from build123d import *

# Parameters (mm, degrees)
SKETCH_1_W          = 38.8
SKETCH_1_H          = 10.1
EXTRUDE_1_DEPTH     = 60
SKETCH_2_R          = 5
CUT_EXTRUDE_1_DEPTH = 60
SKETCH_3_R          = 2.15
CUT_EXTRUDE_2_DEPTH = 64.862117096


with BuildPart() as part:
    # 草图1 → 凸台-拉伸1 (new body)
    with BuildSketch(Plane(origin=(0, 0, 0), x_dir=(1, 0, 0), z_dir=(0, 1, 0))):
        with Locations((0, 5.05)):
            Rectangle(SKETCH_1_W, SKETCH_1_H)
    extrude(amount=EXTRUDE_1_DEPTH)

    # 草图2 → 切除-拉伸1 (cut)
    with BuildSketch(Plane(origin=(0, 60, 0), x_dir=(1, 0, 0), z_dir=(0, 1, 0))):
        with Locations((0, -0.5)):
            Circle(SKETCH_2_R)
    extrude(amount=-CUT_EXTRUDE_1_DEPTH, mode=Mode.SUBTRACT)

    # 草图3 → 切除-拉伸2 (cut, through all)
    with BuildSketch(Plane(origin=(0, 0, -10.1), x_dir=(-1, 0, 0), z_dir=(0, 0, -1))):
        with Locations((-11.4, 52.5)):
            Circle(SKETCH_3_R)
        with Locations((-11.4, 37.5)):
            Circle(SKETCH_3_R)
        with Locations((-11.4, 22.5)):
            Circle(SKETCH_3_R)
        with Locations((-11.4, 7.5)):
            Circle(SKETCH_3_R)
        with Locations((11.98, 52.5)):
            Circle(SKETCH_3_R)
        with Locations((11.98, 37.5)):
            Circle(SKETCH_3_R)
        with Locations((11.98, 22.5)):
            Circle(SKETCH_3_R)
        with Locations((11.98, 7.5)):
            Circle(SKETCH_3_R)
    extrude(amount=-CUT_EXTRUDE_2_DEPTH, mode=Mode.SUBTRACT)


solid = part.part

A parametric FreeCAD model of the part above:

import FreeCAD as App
import Part
import Sketcher


def add_polygon(sketch, points):
    """Adds a closed chain of lines whose ends are joined by coincident constraints."""
    first, n = sketch.GeometryCount, len(points)
    for a, b in zip(points, points[1:] + points[:1]):
        sketch.addGeometry(Part.LineSegment(App.Vector(*a, 0), App.Vector(*b, 0)), False)
    for i in range(n):
        sketch.addConstraint(Sketcher.Constraint("Coincident", first + i, 2, first + (i + 1) % n, 1))

doc = App.newDocument("Part")
params = doc.addObject("Spreadsheet::Sheet", "Params")
for row, (alias, value) in enumerate([
    ("sketch1_width", "38.8 mm"),
    ("sketch1_height", "10.1 mm"),
    ("pad1_length", "60 mm"),
    ("sketch2_diameter", "10 mm"),
    ("pocket1_length", "60 mm"),
    ("sketch3_diameter", "4.3 mm"),
], start=1):
    params.set(f"A{row}", alias)
    params.set(f"B{row}", "=" + value)
    params.setAlias(f"B{row}", alias)

body = doc.addObject("PartDesign::Body", "Body")

# Sketch on XZ plane
sketch1 = doc.addObject("Sketcher::SketchObject", "Sketch")
body.addObject(sketch1)
sketch1.AttachmentSupport = (doc.XZ_Plane, [""])
sketch1.MapMode = "FlatFace"
add_polygon(sketch1, [(-19, -10), (-19, 0), (19, 0), (19, -10)])  # lines 0-3
sketch1.addConstraint([
    Sketcher.Constraint("Vertical", 0),
    Sketcher.Constraint("Horizontal", 1),
    Sketcher.Constraint("Vertical", 2),
    Sketcher.Constraint("Horizontal", 3),
    Sketcher.Constraint("Symmetric", 0, 2, 1, 2, -1, 1),
    Sketcher.Constraint("DistanceX", 1, 1, 1, 2, 38.8),
    Sketcher.Constraint("DistanceY", 0, 1, 0, 2, 10.1),
])
sketch1.setExpression("Constraints[9]", "Params.sketch1_width")
sketch1.setExpression("Constraints[10]", "Params.sketch1_height")
pad1 = doc.addObject("PartDesign::Pad", "Pad")
body.addObject(pad1)
pad1.Profile = sketch1
pad1.setExpression("Length", "Params.pad1_length")
pad1.Reversed = True

# Sketch on XZ plane
sketch2 = doc.addObject("Sketcher::SketchObject", "Sketch001")
body.addObject(sketch2)
sketch2.AttachmentSupport = (doc.XZ_Plane, [""])
sketch2.MapMode = "FlatFace"
sketch2.AttachmentOffset = App.Placement(App.Vector(0, 0, -60), App.Rotation())
sketch2.addGeometry(Part.Circle(App.Vector(0, 0, 0), App.Vector(0, 0, 1), 5), False)
sketch2.addConstraint([
    Sketcher.Constraint("PointOnObject", 0, 3, -2),
    Sketcher.Constraint("Diameter", 0, 10.0),
    Sketcher.Constraint("DistanceY", -1, 1, 0, 3, 0.5),
])
sketch2.setExpression("Constraints[1]", "Params.sketch2_diameter")
pocket1 = doc.addObject("PartDesign::Pocket", "Pocket")
body.addObject(pocket1)
pocket1.Profile = sketch2
pocket1.setExpression("Length", "Params.pocket1_length")
pocket1.Reversed = True

# Sketch on XY plane
sketch3 = doc.addObject("Sketcher::SketchObject", "Sketch002")
body.addObject(sketch3)
sketch3.AttachmentSupport = (doc.XY_Plane, [""])
sketch3.MapMode = "FlatFace"
sketch3.AttachmentOffset = App.Placement(App.Vector(0, 0, -10.1), App.Rotation())
sketch3.addGeometry([
    Part.Circle(App.Vector(11.4, 52.5, 0), App.Vector(0, 0, 1), 2.1),  # 0
    Part.Circle(App.Vector(11.4, 37.5, 0), App.Vector(0, 0, 1), 2.1),  # 1
    Part.Circle(App.Vector(11.4, 22.5, 0), App.Vector(0, 0, 1), 2.1),  # 2
    Part.Circle(App.Vector(11.4, 7.5, 0), App.Vector(0, 0, 1), 2.1),  # 3
    Part.Circle(App.Vector(-12, 52.5, 0), App.Vector(0, 0, 1), 2.1),  # 4
    Part.Circle(App.Vector(-12, 37.5, 0), App.Vector(0, 0, 1), 2.1),  # 5
    Part.Circle(App.Vector(-12, 22.5, 0), App.Vector(0, 0, 1), 2.1),  # 6
    Part.Circle(App.Vector(-12, 7.5, 0), App.Vector(0, 0, 1), 2.1),  # 7
], False)
sketch3.addConstraint([
    Sketcher.Constraint("Equal", 0, 1),
    Sketcher.Constraint("Equal", 1, 2),
    Sketcher.Constraint("Equal", 2, 3),
    Sketcher.Constraint("Equal", 3, 4),
    Sketcher.Constraint("Equal", 4, 5),
    Sketcher.Constraint("Equal", 5, 6),
    Sketcher.Constraint("Equal", 6, 7),
    Sketcher.Constraint("Horizontal", 0, 3, 4, 3),
    Sketcher.Constraint("Horizontal", 1, 3, 5, 3),
    Sketcher.Constraint("Horizontal", 2, 3, 6, 3),
    Sketcher.Constraint("Horizontal", 3, 3, 7, 3),
    Sketcher.Constraint("Vertical", 0, 3, 1, 3),
    Sketcher.Constraint("Vertical", 1, 3, 2, 3),
    Sketcher.Constraint("Vertical", 2, 3, 3, 3),
    Sketcher.Constraint("Vertical", 4, 3, 5, 3),
    Sketcher.Constraint("Vertical", 5, 3, 6, 3),
    Sketcher.Constraint("Vertical", 6, 3, 7, 3),
    Sketcher.Constraint("Diameter", 0, 4.3),
    Sketcher.Constraint("DistanceY", 1, 3, 0, 3, 15.0),
    Sketcher.Constraint("DistanceY", 2, 3, 1, 3, 15.0),
    Sketcher.Constraint("DistanceY", 3, 3, 2, 3, 15.0),
    Sketcher.Constraint("DistanceX", -1, 1, 0, 3, 11.4),
    Sketcher.Constraint("DistanceY", -1, 1, 0, 3, 52.5),
    Sketcher.Constraint("DistanceX", 4, 3, -1, 1, 11.98),
])
sketch3.setExpression("Constraints[17]", "Params.sketch3_diameter")
pocket2 = doc.addObject("PartDesign::Pocket", "Pocket001")
body.addObject(pocket2)
pocket2.Profile = sketch3
pocket2.Type = "ThroughAll"
pocket2.Reversed = True

doc.recompute()
